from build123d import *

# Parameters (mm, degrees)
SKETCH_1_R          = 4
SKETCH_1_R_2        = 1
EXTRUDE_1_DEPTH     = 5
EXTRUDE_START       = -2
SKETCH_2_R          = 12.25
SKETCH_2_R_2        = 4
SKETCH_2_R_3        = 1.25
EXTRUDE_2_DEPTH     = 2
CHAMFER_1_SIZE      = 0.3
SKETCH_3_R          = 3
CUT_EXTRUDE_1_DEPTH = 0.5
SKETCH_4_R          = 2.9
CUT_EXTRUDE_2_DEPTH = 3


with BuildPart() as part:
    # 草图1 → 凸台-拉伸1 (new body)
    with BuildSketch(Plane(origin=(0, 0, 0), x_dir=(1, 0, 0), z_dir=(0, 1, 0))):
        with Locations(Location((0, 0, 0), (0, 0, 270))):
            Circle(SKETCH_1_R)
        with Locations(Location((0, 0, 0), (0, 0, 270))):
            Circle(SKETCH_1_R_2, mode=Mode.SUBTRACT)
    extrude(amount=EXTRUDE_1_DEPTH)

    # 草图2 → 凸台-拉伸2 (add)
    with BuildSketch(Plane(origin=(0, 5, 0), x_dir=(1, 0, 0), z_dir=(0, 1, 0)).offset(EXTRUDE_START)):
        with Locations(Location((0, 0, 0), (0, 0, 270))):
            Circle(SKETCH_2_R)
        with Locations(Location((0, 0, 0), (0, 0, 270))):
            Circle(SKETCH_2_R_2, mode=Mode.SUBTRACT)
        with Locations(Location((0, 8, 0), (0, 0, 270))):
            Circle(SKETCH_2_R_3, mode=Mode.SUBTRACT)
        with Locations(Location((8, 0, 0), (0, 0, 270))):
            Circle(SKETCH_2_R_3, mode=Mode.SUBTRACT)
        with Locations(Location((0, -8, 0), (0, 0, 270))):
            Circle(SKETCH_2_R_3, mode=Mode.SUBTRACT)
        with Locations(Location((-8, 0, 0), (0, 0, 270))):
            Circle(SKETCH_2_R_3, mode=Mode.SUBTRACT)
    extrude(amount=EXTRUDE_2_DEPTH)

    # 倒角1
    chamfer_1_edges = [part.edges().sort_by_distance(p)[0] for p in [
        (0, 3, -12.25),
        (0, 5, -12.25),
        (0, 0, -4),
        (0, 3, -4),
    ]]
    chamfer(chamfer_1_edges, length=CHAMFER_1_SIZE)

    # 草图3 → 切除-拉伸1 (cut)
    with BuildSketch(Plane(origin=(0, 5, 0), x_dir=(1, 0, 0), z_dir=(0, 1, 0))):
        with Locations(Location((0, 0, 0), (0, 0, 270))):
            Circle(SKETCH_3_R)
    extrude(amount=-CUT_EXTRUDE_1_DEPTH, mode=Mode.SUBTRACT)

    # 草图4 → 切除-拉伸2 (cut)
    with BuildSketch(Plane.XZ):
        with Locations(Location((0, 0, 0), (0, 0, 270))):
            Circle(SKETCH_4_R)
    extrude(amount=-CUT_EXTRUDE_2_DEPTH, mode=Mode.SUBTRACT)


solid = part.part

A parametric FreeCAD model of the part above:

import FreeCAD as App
import Part
import Sketcher


def edges_at(feature, points):
    """Names of the edges that pass closest to the given points."""
    edges = feature.Shape.Edges
    near = lambda p: min(range(len(edges)), key=lambda i: edges[i].distToShape(Part.Vertex(*p))[0])
    return sorted({f"Edge{near(p) + 1}" for p in points})

doc = App.newDocument("Part")
body = doc.addObject("PartDesign::Body", "Body")

sketch1 = doc.addObject("Sketcher::SketchObject", "Sketch")
body.addObject(sketch1)
sketch1.AttachmentSupport = (doc.XZ_Plane, [""])
sketch1.MapMode = "FlatFace"
sketch1.addGeometry([
    Part.Circle(App.Vector(0, 0, 0), App.Vector(0, 0, 1), 4),
    Part.Circle(App.Vector(0, 0, 0), App.Vector(0, 0, 1), 1),
], False)
sketch1.addConstraint([
    Sketcher.Constraint("Coincident", 0, 3, -1, 1),
    Sketcher.Constraint("Coincident", 1, 3, -1, 1),
    Sketcher.Constraint("Diameter", 0, 8.0),
    Sketcher.Constraint("Diameter", 1, 2.0),
])
pad1 = doc.addObject("PartDesign::Pad", "Pad")
body.addObject(pad1)
pad1.Profile = sketch1
pad1.Length = 5
pad1.Reversed = True

sketch2 = doc.addObject("Sketcher::SketchObject", "Sketch001")
body.addObject(sketch2)
sketch2.AttachmentSupport = (doc.XZ_Plane, [""])
sketch2.MapMode = "FlatFace"
sketch2.AttachmentOffset = App.Placement(App.Vector(0, 0, -3), App.Rotation())
sketch2.addGeometry([
    Part.Circle(App.Vector(0, 0, 0), App.Vector(0, 0, 1), 12.25),
    Part.Circle(App.Vector(0, -8, 0), App.Vector(0, 0, 1), 1.25),
    Part.Circle(App.Vector(-8, 0, 0), App.Vector(0, 0, 1), 1.25),
    Part.Circle(App.Vector(8, 0, 0), App.Vector(0, 0, 1), 1.25),
    Part.Circle(App.Vector(0, 0, 0), App.Vector(0, 0, 1), 4),
    Part.Circle(App.Vector(0, 8, 0), App.Vector(0, 0, 1), 1.25),
], False)
sketch2.addConstraint([
    Sketcher.Constraint("Coincident", 0, 3, -1, 1),
    Sketcher.Constraint("Coincident", 4, 3, -1, 1),
    Sketcher.Constraint("Equal", 1, 2),
    Sketcher.Constraint("Equal", 2, 3),
    Sketcher.Constraint("Equal", 3, 5),
    Sketcher.Constraint("Symmetric", 2, 3, 3, 3, -1, 1),
    Sketcher.Constraint("Symmetric", 1, 3, 5, 3, -1, 1),
    Sketcher.Constraint("PointOnObject", 1, 3, -2),
    Sketcher.Constraint("PointOnObject", 2, 3, -1),
    Sketcher.Constraint("Diameter", 4, 8.0),
    Sketcher.Constraint("Diameter", 0, 24.5),
    Sketcher.Constraint("Diameter", 1, 2.5),
    Sketcher.Constraint("DistanceY", 1, 3, -1, 1, 8.0),
    Sketcher.Constraint("DistanceX", 2, 3, -1, 1, 8.0),
])
pad2 = doc.addObject("PartDesign::Pad", "Pad001")
body.addObject(pad2)
pad2.Profile = sketch2
pad2.Length = 2
pad2.Reversed = True
doc.recompute()

chamfer = doc.addObject("PartDesign::Chamfer", "Chamfer")
body.addObject(chamfer)
chamfer.Base = (pad2, edges_at(pad2, [
    (0, 3, -12.25),
    (0, 5, -12.25),
    (0, 0, -4),
    (0, 3, -4),
]))
chamfer.Size = 0.3

sketch3 = doc.addObject("Sketcher::SketchObject", "Sketch002")
body.addObject(sketch3)
sketch3.AttachmentSupport = (doc.XZ_Plane, [""])
sketch3.MapMode = "FlatFace"
sketch3.AttachmentOffset = App.Placement(App.Vector(0, 0, -5), App.Rotation())
sketch3.addGeometry(Part.Circle(App.Vector(0, 0, 0), App.Vector(0, 0, 1), 3), False)
sketch3.addConstraint([
    Sketcher.Constraint("Coincident", 0, 3, -1, 1),
    Sketcher.Constraint("Diameter", 0, 6.0),
])
pocket1 = doc.addObject("PartDesign::Pocket", "Pocket")
body.addObject(pocket1)
pocket1.Profile = sketch3
pocket1.Length = 0.5
pocket1.Reversed = True

sketch4 = doc.addObject("Sketcher::SketchObject", "Sketch003")
body.addObject(sketch4)
sketch4.AttachmentSupport = (doc.XZ_Plane, [""])
sketch4.MapMode = "FlatFace"
sketch4.addGeometry(Part.Circle(App.Vector(0, 0, 0), App.Vector(0, 0, 1), 2.9), False)
sketch4.addConstraint([
    Sketcher.Constraint("Coincident", 0, 3, -1, 1),
    Sketcher.Constraint("Diameter", 0, 5.8),
])
pocket2 = doc.addObject("PartDesign::Pocket", "Pocket001")
body.addObject(pocket2)
pocket2.Profile = sketch4
pocket2.Length = 3

doc.recompute()
